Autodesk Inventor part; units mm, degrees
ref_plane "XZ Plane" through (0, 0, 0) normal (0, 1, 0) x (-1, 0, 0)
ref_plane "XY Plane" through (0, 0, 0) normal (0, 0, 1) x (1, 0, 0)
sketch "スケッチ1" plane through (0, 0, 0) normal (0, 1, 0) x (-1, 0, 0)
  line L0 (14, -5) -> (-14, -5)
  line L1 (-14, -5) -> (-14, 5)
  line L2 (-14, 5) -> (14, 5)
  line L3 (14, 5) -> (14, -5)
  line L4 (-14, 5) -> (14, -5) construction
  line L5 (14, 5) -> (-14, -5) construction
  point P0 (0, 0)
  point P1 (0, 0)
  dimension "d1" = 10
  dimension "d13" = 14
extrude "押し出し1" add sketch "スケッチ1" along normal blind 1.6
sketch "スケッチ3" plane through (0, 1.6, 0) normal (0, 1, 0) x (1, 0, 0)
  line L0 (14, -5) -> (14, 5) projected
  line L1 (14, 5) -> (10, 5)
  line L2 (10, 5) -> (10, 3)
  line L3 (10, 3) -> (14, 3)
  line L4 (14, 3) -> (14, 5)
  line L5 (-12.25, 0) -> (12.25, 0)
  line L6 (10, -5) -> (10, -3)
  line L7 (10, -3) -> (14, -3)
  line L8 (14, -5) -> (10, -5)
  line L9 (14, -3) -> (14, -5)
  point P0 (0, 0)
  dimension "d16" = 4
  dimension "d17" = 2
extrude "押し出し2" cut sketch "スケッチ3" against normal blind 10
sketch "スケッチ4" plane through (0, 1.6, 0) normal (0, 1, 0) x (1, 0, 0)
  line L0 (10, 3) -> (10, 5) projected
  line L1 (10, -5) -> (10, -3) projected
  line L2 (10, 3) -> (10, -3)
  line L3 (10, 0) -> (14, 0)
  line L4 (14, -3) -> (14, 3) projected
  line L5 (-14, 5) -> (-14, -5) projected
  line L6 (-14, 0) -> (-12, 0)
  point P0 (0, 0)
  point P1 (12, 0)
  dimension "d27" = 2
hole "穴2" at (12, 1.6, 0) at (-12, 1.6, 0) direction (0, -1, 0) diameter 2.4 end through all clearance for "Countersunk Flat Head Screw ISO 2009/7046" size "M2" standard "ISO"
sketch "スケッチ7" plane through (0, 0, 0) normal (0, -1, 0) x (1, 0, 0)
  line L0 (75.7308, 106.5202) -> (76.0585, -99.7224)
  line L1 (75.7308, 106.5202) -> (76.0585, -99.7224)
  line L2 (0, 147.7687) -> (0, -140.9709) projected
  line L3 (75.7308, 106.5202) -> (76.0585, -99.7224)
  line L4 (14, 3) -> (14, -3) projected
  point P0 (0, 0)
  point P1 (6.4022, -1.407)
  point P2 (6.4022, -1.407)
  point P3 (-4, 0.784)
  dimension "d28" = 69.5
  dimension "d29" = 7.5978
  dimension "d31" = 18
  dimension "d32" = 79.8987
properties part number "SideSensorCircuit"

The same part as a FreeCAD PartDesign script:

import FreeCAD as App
import Part
import Sketcher

doc = App.newDocument("Part")
body = doc.addObject("PartDesign::Body", "Body")

# Sketch on XZ plane
sketch1 = body.newObject("Sketcher::SketchObject", "Sketch")
sketch1.AttachmentSupport = (doc.getObject("XZ_Plane"), [""])
sketch1.MapMode = "FlatFace"
sketch1.addGeometry(Part.LineSegment(App.Vector(14, -5, 0), App.Vector(-14, -5, 0)), False)
sketch1.addGeometry(Part.LineSegment(App.Vector(-14, -5, 0), App.Vector(-14, 5, 0)), False)
sketch1.addGeometry(Part.LineSegment(App.Vector(-14, 5, 0), App.Vector(14, 5, 0)), False)
sketch1.addGeometry(Part.LineSegment(App.Vector(14, 5, 0), App.Vector(14, -5, 0)), False)
sketch1.addConstraint(Sketcher.Constraint("Coincident", 0, 2, 1, 1))
sketch1.addConstraint(Sketcher.Constraint("Coincident", 1, 2, 2, 1))
sketch1.addConstraint(Sketcher.Constraint("Coincident", 2, 2, 3, 1))
sketch1.addConstraint(Sketcher.Constraint("Coincident", 3, 2, 0, 1))
sketch1.addConstraint(Sketcher.Constraint("Horizontal", 0))
sketch1.addConstraint(Sketcher.Constraint("Vertical", 1))
sketch1.addConstraint(Sketcher.Constraint("Horizontal", 2))
sketch1.addConstraint(Sketcher.Constraint("Vertical", 3))
sketch1.addConstraint(Sketcher.Constraint("Symmetric", 0, 2, 2, 2, -1, 1))
sketch1.addConstraint(Sketcher.Constraint("DistanceY", 1, 1, 1, 2, 10.0))
sketch1.addConstraint(Sketcher.Constraint("DistanceX", 0, 2, -1, 1, 14.0))
pad1 = body.newObject("PartDesign::Pad", "Pad")
pad1.Profile = sketch1
pad1.Length = 1.6
pad1.Reversed = True

# Sketch on XZ plane
sketch2 = body.newObject("Sketcher::SketchObject", "Sketch001")
sketch2.AttachmentSupport = (doc.getObject("XZ_Plane"), [""])
sketch2.MapMode = "FlatFace"
sketch2.AttachmentOffset = App.Placement(App.Vector(0, 0, -1.6), App.Rotation())
sketch2.addGeometry(Part.LineSegment(App.Vector(10, 5, 0), App.Vector(14, 5, 0)), False)
sketch2.addGeometry(Part.LineSegment(App.Vector(14, 5, 0), App.Vector(14, 3, 0)), False)
sketch2.addGeometry(Part.LineSegment(App.Vector(14, 3, 0), App.Vector(10, 3, 0)), False)
sketch2.addGeometry(Part.LineSegment(App.Vector(10, 3, 0), App.Vector(10, 5, 0)), False)
sketch2.addGeometry(Part.LineSegment(App.Vector(10, -3, 0), App.Vector(14, -3, 0)), False)
sketch2.addGeometry(Part.LineSegment(App.Vector(14, -3, 0), App.Vector(14, -5, 0)), False)
sketch2.addGeometry(Part.LineSegment(App.Vector(14, -5, 0), App.Vector(10, -5, 0)), False)
sketch2.addGeometry(Part.LineSegment(App.Vector(10, -5, 0), App.Vector(10, -3, 0)), False)
sketch2.addConstraint(Sketcher.Constraint("Coincident", 0, 2, 1, 1))
sketch2.addConstraint(Sketcher.Constraint("Coincident", 1, 2, 2, 1))
sketch2.addConstraint(Sketcher.Constraint("Coincident", 2, 2, 3, 1))
sketch2.addConstraint(Sketcher.Constraint("Coincident", 3, 2, 0, 1))
sketch2.addConstraint(Sketcher.Constraint("Coincident", 4, 2, 5, 1))
sketch2.addConstraint(Sketcher.Constraint("Coincident", 5, 2, 6, 1))
sketch2.addConstraint(Sketcher.Constraint("Coincident", 6, 2, 7, 1))
sketch2.addConstraint(Sketcher.Constraint("Coincident", 7, 2, 4, 1))
sketch2.addConstraint(Sketcher.Constraint("Horizontal", 0))
sketch2.addConstraint(Sketcher.Constraint("Vertical", 1))
sketch2.addConstraint(Sketcher.Constraint("Horizontal", 2))
sketch2.addConstraint(Sketcher.Constraint("Vertical", 3))
sketch2.addConstraint(Sketcher.Constraint("Horizontal", 4))
sketch2.addConstraint(Sketcher.Constraint("Vertical", 5))
sketch2.addConstraint(Sketcher.Constraint("Horizontal", 6))
sketch2.addConstraint(Sketcher.Constraint("Vertical", 7))
sketch2.addConstraint(Sketcher.Constraint("Symmetric", 1, 2, 4, 2, -1))
sketch2.addConstraint(Sketcher.Constraint("Symmetric", 3, 2, 6, 2, -1))
sketch2.addConstraint(Sketcher.Constraint("DistanceX", 0, 1, 0, 2, 4.0))
sketch2.addConstraint(Sketcher.Constraint("DistanceY", 1, 2, 1, 1, 2.0))
sketch2.addConstraint(Sketcher.Constraint("DistanceX", -1, 1, 0, 2, 14.0))
sketch2.addConstraint(Sketcher.Constraint("DistanceY", -1, 1, 0, 2, 5.0))
pocket1 = body.newObject("PartDesign::Pocket", "Pocket")
pocket1.Profile = sketch2
pocket1.Length = 10
pocket1.Reversed = True

# Sketch on XZ plane
sketch3 = body.newObject("Sketcher::SketchObject", "Sketch002")
sketch3.AttachmentSupport = (doc.getObject("XZ_Plane"), [""])
sketch3.MapMode = "FlatFace"
sketch3.AttachmentOffset = App.Placement(App.Vector(0, 0, -1.6), App.Rotation())
sketch3.addGeometry(Part.Circle(App.Vector(12, 0, 0), App.Vector(0, 0, 1), 1.2), False)
sketch3.addGeometry(Part.Circle(App.Vector(-12, 0, 0), App.Vector(0, 0, 1), 1.2), False)
sketch3.addConstraint(Sketcher.Constraint("Equal", 0, 1))
sketch3.addConstraint(Sketcher.Constraint("Symmetric", 0, 3, 1, 3, -1, 1))
sketch3.addConstraint(Sketcher.Constraint("PointOnObject", 0, 3, -1))
sketch3.addConstraint(Sketcher.Constraint("Diameter", 0, 2.4))
sketch3.addConstraint(Sketcher.Constraint("DistanceX", -1, 1, 0, 3, 12.0))
doc.recompute()
hole = body.newObject("PartDesign::Hole", "Hole")
hole.Profile = sketch3
hole.ThreadType = "None"
hole.Diameter = 2.4
hole.DepthType = "ThroughAll"
hole.Reversed = True

doc.recompute()
